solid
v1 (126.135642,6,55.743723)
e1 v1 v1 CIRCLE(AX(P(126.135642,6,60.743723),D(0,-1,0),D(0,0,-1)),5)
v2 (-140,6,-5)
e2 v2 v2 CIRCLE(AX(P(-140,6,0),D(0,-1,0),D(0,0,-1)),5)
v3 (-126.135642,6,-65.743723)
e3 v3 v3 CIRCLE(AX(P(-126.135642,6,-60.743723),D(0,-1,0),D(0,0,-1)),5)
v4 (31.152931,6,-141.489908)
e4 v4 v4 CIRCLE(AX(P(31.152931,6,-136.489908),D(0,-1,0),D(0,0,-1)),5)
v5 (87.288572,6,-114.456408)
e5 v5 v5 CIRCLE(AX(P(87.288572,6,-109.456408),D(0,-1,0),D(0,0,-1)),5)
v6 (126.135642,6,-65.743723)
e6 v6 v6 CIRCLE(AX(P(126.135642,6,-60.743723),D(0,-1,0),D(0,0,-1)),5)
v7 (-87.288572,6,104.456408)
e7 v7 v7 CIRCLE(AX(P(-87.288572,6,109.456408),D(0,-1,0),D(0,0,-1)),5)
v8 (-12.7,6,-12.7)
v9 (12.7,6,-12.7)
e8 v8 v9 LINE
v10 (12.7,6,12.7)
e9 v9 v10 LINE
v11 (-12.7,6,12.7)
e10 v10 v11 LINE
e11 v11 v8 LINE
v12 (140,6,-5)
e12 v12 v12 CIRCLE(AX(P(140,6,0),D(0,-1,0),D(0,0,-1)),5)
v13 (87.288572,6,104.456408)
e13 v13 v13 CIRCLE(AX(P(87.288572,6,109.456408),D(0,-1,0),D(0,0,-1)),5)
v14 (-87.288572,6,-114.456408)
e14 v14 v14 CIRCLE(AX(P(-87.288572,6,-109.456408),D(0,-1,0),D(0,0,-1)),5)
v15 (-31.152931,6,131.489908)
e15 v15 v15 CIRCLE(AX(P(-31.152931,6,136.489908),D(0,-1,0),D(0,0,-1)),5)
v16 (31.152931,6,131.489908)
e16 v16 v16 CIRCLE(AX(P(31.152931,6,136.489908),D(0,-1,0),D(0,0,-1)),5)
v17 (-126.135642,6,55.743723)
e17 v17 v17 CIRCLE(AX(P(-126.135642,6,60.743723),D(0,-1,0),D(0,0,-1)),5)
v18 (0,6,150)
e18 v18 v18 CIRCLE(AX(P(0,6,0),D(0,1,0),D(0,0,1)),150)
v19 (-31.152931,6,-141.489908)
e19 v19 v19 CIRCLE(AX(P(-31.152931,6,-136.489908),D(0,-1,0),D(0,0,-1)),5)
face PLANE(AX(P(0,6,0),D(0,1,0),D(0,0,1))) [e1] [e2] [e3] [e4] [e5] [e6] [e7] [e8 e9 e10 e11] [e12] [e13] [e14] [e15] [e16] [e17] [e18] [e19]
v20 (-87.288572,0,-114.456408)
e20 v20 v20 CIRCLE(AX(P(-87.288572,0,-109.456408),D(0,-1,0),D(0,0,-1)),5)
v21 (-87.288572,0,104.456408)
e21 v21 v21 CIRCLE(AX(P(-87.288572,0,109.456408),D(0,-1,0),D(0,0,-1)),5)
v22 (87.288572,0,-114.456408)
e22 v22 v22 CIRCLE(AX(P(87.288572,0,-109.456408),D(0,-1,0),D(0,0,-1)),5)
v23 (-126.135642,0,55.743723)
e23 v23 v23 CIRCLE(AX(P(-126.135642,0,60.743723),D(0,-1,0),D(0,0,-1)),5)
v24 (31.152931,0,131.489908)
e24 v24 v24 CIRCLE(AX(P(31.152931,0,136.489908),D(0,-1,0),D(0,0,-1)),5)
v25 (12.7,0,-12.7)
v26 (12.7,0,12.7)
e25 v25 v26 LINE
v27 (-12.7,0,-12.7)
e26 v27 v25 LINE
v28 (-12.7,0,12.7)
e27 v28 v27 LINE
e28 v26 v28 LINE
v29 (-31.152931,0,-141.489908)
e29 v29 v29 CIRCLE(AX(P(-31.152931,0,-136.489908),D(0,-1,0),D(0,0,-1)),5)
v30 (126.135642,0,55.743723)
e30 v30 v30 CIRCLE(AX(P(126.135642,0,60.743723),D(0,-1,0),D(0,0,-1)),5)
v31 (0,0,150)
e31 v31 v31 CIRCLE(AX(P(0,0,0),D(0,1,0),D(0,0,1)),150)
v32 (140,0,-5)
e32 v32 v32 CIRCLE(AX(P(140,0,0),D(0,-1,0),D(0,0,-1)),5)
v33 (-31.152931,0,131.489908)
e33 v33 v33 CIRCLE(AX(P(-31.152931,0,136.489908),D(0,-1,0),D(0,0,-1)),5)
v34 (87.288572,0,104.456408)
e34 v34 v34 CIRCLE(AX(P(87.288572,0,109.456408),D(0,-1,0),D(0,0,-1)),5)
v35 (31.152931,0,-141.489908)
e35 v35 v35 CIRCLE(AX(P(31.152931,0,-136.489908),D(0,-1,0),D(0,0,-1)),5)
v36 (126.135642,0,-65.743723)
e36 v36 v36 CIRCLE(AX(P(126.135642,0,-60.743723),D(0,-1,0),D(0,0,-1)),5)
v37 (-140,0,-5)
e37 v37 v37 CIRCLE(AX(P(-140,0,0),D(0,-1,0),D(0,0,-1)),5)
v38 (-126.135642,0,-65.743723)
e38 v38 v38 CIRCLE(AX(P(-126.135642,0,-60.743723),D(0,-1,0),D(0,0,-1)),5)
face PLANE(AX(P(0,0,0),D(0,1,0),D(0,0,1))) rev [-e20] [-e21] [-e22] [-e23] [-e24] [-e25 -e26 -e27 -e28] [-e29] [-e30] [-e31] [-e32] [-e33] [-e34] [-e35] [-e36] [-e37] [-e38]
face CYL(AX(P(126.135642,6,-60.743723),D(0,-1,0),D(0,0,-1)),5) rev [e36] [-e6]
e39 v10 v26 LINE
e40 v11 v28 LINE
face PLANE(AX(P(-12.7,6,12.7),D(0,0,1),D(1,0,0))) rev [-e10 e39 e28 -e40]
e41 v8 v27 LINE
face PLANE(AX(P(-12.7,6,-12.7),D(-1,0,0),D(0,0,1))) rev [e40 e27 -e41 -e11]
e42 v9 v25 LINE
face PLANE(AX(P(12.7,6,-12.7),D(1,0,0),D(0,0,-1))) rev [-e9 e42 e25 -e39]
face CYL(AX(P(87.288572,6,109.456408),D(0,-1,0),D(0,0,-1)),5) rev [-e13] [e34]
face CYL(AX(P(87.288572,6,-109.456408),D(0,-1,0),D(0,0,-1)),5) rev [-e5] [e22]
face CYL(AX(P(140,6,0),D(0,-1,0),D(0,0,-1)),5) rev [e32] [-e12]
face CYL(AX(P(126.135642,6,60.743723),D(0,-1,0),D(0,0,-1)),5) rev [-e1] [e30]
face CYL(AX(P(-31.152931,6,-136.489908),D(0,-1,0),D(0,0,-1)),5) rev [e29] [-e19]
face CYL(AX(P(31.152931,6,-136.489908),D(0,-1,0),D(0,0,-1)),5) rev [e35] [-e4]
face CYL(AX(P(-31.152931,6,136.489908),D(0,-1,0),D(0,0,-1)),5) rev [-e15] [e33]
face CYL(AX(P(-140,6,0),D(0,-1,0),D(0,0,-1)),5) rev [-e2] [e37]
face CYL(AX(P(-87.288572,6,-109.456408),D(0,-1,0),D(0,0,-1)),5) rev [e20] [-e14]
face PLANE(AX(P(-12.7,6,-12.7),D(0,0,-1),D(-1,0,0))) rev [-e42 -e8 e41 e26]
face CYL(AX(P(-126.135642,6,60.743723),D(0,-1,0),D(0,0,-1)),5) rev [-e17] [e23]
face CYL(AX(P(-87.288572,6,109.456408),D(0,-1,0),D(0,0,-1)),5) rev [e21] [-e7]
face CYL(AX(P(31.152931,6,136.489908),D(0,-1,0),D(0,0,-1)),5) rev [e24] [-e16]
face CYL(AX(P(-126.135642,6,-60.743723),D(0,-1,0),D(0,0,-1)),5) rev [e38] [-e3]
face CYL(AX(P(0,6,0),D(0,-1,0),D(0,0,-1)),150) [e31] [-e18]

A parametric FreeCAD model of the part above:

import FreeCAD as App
import Part
import Sketcher
from FreeCAD import Vector


def add_polygon(sketch, points):
    """Adds a closed chain of lines whose ends are joined by coincident constraints."""
    first, n = sketch.GeometryCount, len(points)
    for a, b in zip(points, points[1:] + points[:1]):
        sketch.addGeometry(Part.LineSegment(App.Vector(*a, 0), App.Vector(*b, 0)), False)
    for i in range(n):
        sketch.addConstraint(Sketcher.Constraint("Coincident", first + i, 2, first + (i + 1) % n, 1))

doc = App.newDocument("Part")
params = doc.addObject("Spreadsheet::Sheet", "Params")
for row, (alias, value) in enumerate([
    ("sketch1_diameter", "300 mm"),
    ("pad1_length", "6 mm"),
    ("sketch2_diameter", "10 mm"),
    ("sketch3_width", "25.4 mm"),
], start=1):
    params.set(f"A{row}", alias)
    params.set(f"B{row}", "=" + value)
    params.setAlias(f"B{row}", alias)

body = doc.addObject("PartDesign::Body", "Body")

# Sketch on XZ plane
sketch1 = body.newObject("Sketcher::SketchObject", "Sketch")
sketch1.AttachmentSupport = (doc.getObject("XZ_Plane"), [""])
sketch1.MapMode = "FlatFace"
sketch1.addGeometry(Part.Circle(Vector(0, 0, 0), Vector(0, 0, 1), 150), False)
sketch1.addConstraint(Sketcher.Constraint("Coincident", 0, 3, -1, 1))
sketch1.addConstraint(Sketcher.Constraint("Diameter", 0, 300.0))
sketch1.setExpression("Constraints[1]", "Params.sketch1_diameter")
pad1 = body.newObject("PartDesign::Pad", "Pad")
pad1.Profile = sketch1
pad1.setExpression("Length", "Params.pad1_length")
pad1.Reversed = True

# Sketch on XZ plane
sketch2 = body.newObject("Sketcher::SketchObject", "Sketch001")
sketch2.AttachmentSupport = (doc.getObject("XZ_Plane"), [""])
sketch2.MapMode = "FlatFace"
sketch2.addGeometry(Part.Circle(Vector(140, 0, 0), Vector(0, 0, 1), 5), False)
sketch2.addGeometry(Part.Circle(Vector(126, -61, 0), Vector(0, 0, 1), 5), False)
sketch2.addGeometry(Part.Circle(Vector(87, -109, 0), Vector(0, 0, 1), 5), False)
sketch2.addGeometry(Part.Circle(Vector(31, -136, 0), Vector(0, 0, 1), 5), False)
sketch2.addGeometry(Part.Circle(Vector(-31, -136, 0), Vector(0, 0, 1), 5), False)
sketch2.addGeometry(Part.Circle(Vector(-87, -109, 0), Vector(0, 0, 1), 5), False)
sketch2.addGeometry(Part.Circle(Vector(-126, -61, 0), Vector(0, 0, 1), 5), False)
sketch2.addGeometry(Part.Circle(Vector(-140, 0, 0), Vector(0, 0, 1), 5), False)
sketch2.addGeometry(Part.Circle(Vector(-126, 61, 0), Vector(0, 0, 1), 5), False)
sketch2.addGeometry(Part.Circle(Vector(-87, 109, 0), Vector(0, 0, 1), 5), False)
sketch2.addGeometry(Part.Circle(Vector(-31, 136, 0), Vector(0, 0, 1), 5), False)
sketch2.addGeometry(Part.Circle(Vector(31, 136, 0), Vector(0, 0, 1), 5), False)
sketch2.addGeometry(Part.Circle(Vector(87, 109, 0), Vector(0, 0, 1), 5), False)
sketch2.addGeometry(Part.Circle(Vector(126, 61, 0), Vector(0, 0, 1), 5), False)
sketch2.addConstraint(Sketcher.Constraint("Equal", 0, 1))
sketch2.addConstraint(Sketcher.Constraint("Equal", 1, 2))
sketch2.addConstraint(Sketcher.Constraint("Equal", 2, 3))
sketch2.addConstraint(Sketcher.Constraint("Equal", 3, 4))
sketch2.addConstraint(Sketcher.Constraint("Equal", 4, 5))
sketch2.addConstraint(Sketcher.Constraint("Equal", 5, 6))
sketch2.addConstraint(Sketcher.Constraint("Equal", 6, 7))
sketch2.addConstraint(Sketcher.Constraint("Equal", 7, 8))
sketch2.addConstraint(Sketcher.Constraint("Equal", 8, 9))
sketch2.addConstraint(Sketcher.Constraint("Equal", 9, 10))
sketch2.addConstraint(Sketcher.Constraint("Equal", 10, 11))
sketch2.addConstraint(Sketcher.Constraint("Equal", 11, 12))
sketch2.addConstraint(Sketcher.Constraint("Equal", 12, 13))
sketch2.addConstraint(Sketcher.Constraint("Symmetric", 0, 3, 7, 3, -1, 1))
sketch2.addConstraint(Sketcher.Constraint("Symmetric", 1, 3, 8, 3, -1, 1))
sketch2.addConstraint(Sketcher.Constraint("Symmetric", 2, 3, 9, 3, -1, 1))
sketch2.addConstraint(Sketcher.Constraint("Symmetric", 3, 3, 10, 3, -1, 1))
sketch2.addConstraint(Sketcher.Constraint("Symmetric", 4, 3, 11, 3, -1, 1))
sketch2.addConstraint(Sketcher.Constraint("Symmetric", 5, 3, 12, 3, -1, 1))
sketch2.addConstraint(Sketcher.Constraint("Symmetric", 6, 3, 13, 3, -1, 1))
sketch2.addConstraint(Sketcher.Constraint("Symmetric", 3, 3, 4, 3, -2))
sketch2.addConstraint(Sketcher.Constraint("Symmetric", 2, 3, 5, 3, -2))
sketch2.addConstraint(Sketcher.Constraint("Symmetric", 1, 3, 6, 3, -2))
sketch2.addConstraint(Sketcher.Constraint("PointOnObject", 0, 3, -1))
sketch2.addConstraint(Sketcher.Constraint("Diameter", 0, 10.0))
sketch2.addConstraint(Sketcher.Constraint("DistanceX", -1, 1, 0, 3, 140.0))
sketch2.addConstraint(Sketcher.Constraint("DistanceY", 3, 3, 2, 3, 27.0335))
sketch2.addConstraint(Sketcher.Constraint("DistanceX", -1, 1, 1, 3, 126.135642))
sketch2.addConstraint(Sketcher.Constraint("DistanceX", -1, 1, 3, 3, 31.152931))
sketch2.addConstraint(Sketcher.Constraint("DistanceX", 2, 3, 1, 3, 38.847069))
sketch2.addConstraint(Sketcher.Constraint("DistanceY", 5, 3, 8, 3, 170.200131))
sketch2.addConstraint(Sketcher.Constraint("DistanceY", 1, 3, -1, 1, 60.743723))
sketch2.setExpression("Constraints[24]", "Params.sketch2_diameter")
pocket1 = body.newObject("PartDesign::Pocket", "Pocket")
pocket1.Profile = sketch2
pocket1.Type = "ThroughAll"

# Sketch on XZ plane
sketch3 = body.newObject("Sketcher::SketchObject", "Sketch002")
sketch3.AttachmentSupport = (doc.getObject("XZ_Plane"), [""])
sketch3.MapMode = "FlatFace"
add_polygon(sketch3, [(-13, 13), (-13, -13), (13, -13), (13, 13)])  # lines 0-3
sketch3.addConstraint(Sketcher.Constraint("Vertical", 0))
sketch3.addConstraint(Sketcher.Constraint("Horizontal", 1))
sketch3.addConstraint(Sketcher.Constraint("Vertical", 2))
sketch3.addConstraint(Sketcher.Constraint("Horizontal", 3))
sketch3.addConstraint(Sketcher.Constraint("Symmetric", 0, 2, 2, 2, -1, 1))
sketch3.addConstraint(Sketcher.Constraint("Equal", 3, 0))
sketch3.addConstraint(Sketcher.Constraint("DistanceX", 1, 1, 1, 2, 25.4))
sketch3.setExpression("Constraints[10]", "Params.sketch3_width")
pocket2 = body.newObject("PartDesign::Pocket", "Pocket001")
pocket2.Profile = sketch3
pocket2.Type = "ThroughAll"

doc.recompute()
